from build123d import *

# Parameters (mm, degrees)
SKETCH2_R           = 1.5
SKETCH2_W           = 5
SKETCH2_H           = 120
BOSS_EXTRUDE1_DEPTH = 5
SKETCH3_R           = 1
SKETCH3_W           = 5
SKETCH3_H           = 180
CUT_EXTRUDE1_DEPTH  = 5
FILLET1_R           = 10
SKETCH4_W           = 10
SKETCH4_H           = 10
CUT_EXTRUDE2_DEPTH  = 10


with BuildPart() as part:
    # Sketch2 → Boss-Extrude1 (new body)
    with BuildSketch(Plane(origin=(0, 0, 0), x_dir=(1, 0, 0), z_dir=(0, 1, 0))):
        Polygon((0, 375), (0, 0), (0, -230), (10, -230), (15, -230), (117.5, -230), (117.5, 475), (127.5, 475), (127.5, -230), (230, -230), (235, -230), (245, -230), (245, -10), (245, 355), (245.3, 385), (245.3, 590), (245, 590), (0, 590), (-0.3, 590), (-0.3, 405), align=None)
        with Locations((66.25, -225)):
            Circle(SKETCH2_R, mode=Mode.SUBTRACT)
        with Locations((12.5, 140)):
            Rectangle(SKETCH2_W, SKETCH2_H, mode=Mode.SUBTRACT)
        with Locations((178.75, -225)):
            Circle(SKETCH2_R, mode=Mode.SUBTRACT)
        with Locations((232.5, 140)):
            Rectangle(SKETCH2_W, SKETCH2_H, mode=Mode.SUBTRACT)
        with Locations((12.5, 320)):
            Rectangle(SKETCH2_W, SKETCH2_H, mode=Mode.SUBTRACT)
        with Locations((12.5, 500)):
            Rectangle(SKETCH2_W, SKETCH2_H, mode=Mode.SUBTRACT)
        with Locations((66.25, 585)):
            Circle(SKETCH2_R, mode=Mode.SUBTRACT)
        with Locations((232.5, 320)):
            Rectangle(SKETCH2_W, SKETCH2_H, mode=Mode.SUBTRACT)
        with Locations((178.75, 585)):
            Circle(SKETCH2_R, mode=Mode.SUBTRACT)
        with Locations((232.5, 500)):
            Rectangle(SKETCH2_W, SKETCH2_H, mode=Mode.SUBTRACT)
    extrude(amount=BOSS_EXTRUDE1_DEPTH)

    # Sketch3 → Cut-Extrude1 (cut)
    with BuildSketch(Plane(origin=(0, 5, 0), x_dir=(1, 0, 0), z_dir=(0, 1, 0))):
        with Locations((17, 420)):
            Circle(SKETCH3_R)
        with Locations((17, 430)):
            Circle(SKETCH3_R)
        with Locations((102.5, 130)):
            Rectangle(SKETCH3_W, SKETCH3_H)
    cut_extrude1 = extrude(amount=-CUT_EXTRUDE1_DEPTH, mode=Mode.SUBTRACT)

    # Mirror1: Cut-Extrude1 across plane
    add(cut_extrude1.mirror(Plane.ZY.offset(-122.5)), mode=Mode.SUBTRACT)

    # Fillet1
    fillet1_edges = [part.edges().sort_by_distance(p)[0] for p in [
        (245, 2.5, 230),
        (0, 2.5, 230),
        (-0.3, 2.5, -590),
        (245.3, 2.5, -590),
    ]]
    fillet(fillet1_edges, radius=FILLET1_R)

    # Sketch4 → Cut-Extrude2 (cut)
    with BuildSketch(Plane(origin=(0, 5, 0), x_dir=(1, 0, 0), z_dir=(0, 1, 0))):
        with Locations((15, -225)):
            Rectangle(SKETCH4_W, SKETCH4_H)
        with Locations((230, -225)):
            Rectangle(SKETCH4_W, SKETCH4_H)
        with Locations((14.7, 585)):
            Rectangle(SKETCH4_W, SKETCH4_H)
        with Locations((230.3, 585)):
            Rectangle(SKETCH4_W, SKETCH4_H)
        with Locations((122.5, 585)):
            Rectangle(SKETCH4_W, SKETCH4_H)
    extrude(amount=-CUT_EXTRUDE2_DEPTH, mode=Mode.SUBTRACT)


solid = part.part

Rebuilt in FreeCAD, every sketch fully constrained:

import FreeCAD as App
import Part
import Sketcher

V = App.Vector


def edges_at(feature, points):
    """Names of the edges that pass closest to the given points."""
    edges = feature.Shape.Edges
    near = lambda p: min(range(len(edges)), key=lambda i: edges[i].distToShape(Part.Vertex(*p))[0])
    return sorted({f"Edge{near(p) + 1}" for p in points})


def add_polygon(sketch, points):
    """Adds a closed chain of lines whose ends are joined by coincident constraints."""
    first, n = sketch.GeometryCount, len(points)
    for a, b in zip(points, points[1:] + points[:1]):
        sketch.addGeometry(Part.LineSegment(App.Vector(*a, 0), App.Vector(*b, 0)), False)
    for i in range(n):
        sketch.addConstraint(Sketcher.Constraint("Coincident", first + i, 2, first + (i + 1) % n, 1))

doc = App.newDocument("Part")
body = doc.addObject("PartDesign::Body", "Body")

# Sketch on XZ plane
sketch1 = body.newObject("Sketcher::SketchObject", "Sketch")
sketch1.AttachmentSupport = (doc.getObject("XZ_Plane"), [""])
sketch1.MapMode = "FlatFace"
add_polygon(sketch1, [(0, -375), (0, 230), (117.5, 230), (117.5, -475), (127.5, -475), (127.5, 230), (245, 230), (245, -355), (245.3, -385), (245.3, -590), (-0.3, -590), (-0.3, -405)])  # lines 0-11
sketch1.addGeometry(Part.Circle(V(66.2, 225, 0), V(0, 0, 1), 1.5), False)  # 12
add_polygon(sketch1, [(15, -80), (10, -80), (10, -200), (15, -200)])  # lines 13-16
sketch1.addGeometry(Part.Circle(V(178.8, 225, 0), V(0, 0, 1), 1.5), False)  # 17
add_polygon(sketch1, [(235, -80), (230, -80), (230, -200), (235, -200)])  # lines 18-21
add_polygon(sketch1, [(15, -260), (10, -260), (10, -380), (15, -380)])  # lines 22-25
add_polygon(sketch1, [(15, -440), (10, -440), (10, -560), (15, -560)])  # lines 26-29
sketch1.addGeometry(Part.Circle(V(66.2, -585, 0), V(0, 0, 1), 1.5), False)  # 30
add_polygon(sketch1, [(235, -260), (230, -260), (230, -380), (235, -380)])  # lines 31-34
sketch1.addGeometry(Part.Circle(V(178.8, -585, 0), V(0, 0, 1), 1.5), False)  # 35
add_polygon(sketch1, [(235, -440), (230, -440), (230, -560), (235, -560)])  # lines 36-39
sketch1.addConstraint([
    Sketcher.Constraint("Vertical", 0),
    Sketcher.Constraint("Horizontal", 1),
    Sketcher.Constraint("Vertical", 2),
    Sketcher.Constraint("Horizontal", 3),
    Sketcher.Constraint("Vertical", 4),
    Sketcher.Constraint("Horizontal", 5),
    Sketcher.Constraint("Vertical", 6),
    Sketcher.Constraint("Vertical", 8),
    Sketcher.Constraint("Horizontal", 9),
    Sketcher.Constraint("Vertical", 10),
    Sketcher.Constraint("Horizontal", 13),
    Sketcher.Constraint("Vertical", 14),
    Sketcher.Constraint("Horizontal", 15),
    Sketcher.Constraint("Vertical", 16),
    Sketcher.Constraint("Horizontal", 18),
    Sketcher.Constraint("Vertical", 19),
    Sketcher.Constraint("Horizontal", 20),
    Sketcher.Constraint("Vertical", 21),
    Sketcher.Constraint("Horizontal", 22),
    Sketcher.Constraint("Vertical", 23),
    Sketcher.Constraint("Horizontal", 24),
    Sketcher.Constraint("Vertical", 25),
    Sketcher.Constraint("Horizontal", 26),
    Sketcher.Constraint("Vertical", 27),
    Sketcher.Constraint("Horizontal", 28),
    Sketcher.Constraint("Vertical", 29),
    Sketcher.Constraint("Horizontal", 31),
    Sketcher.Constraint("Vertical", 32),
    Sketcher.Constraint("Horizontal", 33),
    Sketcher.Constraint("Vertical", 34),
    Sketcher.Constraint("Horizontal", 36),
    Sketcher.Constraint("Vertical", 37),
    Sketcher.Constraint("Horizontal", 38),
    Sketcher.Constraint("Vertical", 39),
    Sketcher.Constraint("Equal", 12, 17),
    Sketcher.Constraint("Equal", 17, 30),
    Sketcher.Constraint("Equal", 30, 35),
    Sketcher.Constraint("PointOnObject", 0, 2, -2),
    Sketcher.Constraint("Horizontal", 12, 3, 17, 3),
    Sketcher.Constraint("Horizontal", 30, 3, 35, 3),
    Sketcher.Constraint("Horizontal", 1, 2, 4, 2),
    Sketcher.Constraint("Horizontal", 16, 2, 18, 2),
    Sketcher.Constraint("Horizontal", 15, 2, 19, 2),
    Sketcher.Constraint("Horizontal", 25, 2, 31, 2),
    Sketcher.Constraint("Horizontal", 24, 2, 32, 2),
    Sketcher.Constraint("Horizontal", 29, 2, 36, 2),
    Sketcher.Constraint("Horizontal", 28, 2, 37, 2),
    Sketcher.Constraint("Vertical", 12, 3, 30, 3),
    Sketcher.Constraint("Vertical", 17, 3, 35, 3),
    Sketcher.Constraint("Vertical", 14, 2, 22, 2),
    Sketcher.Constraint("Vertical", 16, 2, 24, 2),
    Sketcher.Constraint("Vertical", 23, 2, 26, 2),
    Sketcher.Constraint("Vertical", 25, 2, 28, 2),
    Sketcher.Constraint("Vertical", 19, 2, 31, 2),
    Sketcher.Constraint("Vertical", 21, 2, 33, 2),
    Sketcher.Constraint("Vertical", 32, 2, 36, 2),
    Sketcher.Constraint("Vertical", 34, 2, 38, 2),
    Sketcher.Constraint("Equal", 1, 5),
    Sketcher.Constraint("Equal", 15, 18),
    Sketcher.Constraint("Equal", 21, 23),
    Sketcher.Constraint("Equal", 25, 27),
    Sketcher.Constraint("Equal", 7, 11),
    Sketcher.Constraint("Diameter", 12, 3.0),
    Sketcher.Constraint("DistanceX", 3, 1, 3, 2, 10.0),
    Sketcher.Constraint("DistanceX", 13, 2, 13, 1, 5.0),
    Sketcher.Constraint("DistanceY", 0, 1, 0, 2, 605.0),
    Sketcher.Constraint("DistanceY", 2, 2, 2, 1, 705.0),
    Sketcher.Constraint("DistanceY", 6, 2, 6, 1, 585.0),
    Sketcher.Constraint("DistanceY", 8, 2, 8, 1, 205.0),
    Sketcher.Constraint("DistanceY", 10, 1, 10, 2, 185.0),
    Sketcher.Constraint("DistanceY", 14, 2, 14, 1, 120.0),
    Sketcher.Constraint("DistanceX", 1, 1, 1, 2, 117.5),
    Sketcher.Constraint("DistanceX", 9, 2, 9, 1, 245.6),
    Sketcher.Constraint("DistanceY", -1, 1, 12, 3, 225.0),
    Sketcher.Constraint("DistanceY", 30, 3, -1, 1, 585.0),
    Sketcher.Constraint("DistanceY", -1, 1, 0, 2, 230.0),
    Sketcher.Constraint("DistanceY", 7, 2, -1, 1, 385.0),
    Sketcher.Constraint("DistanceX", -1, 1, 13, 2, 10.0),
    Sketcher.Constraint("DistanceY", 13, 2, -1, 1, 80.0),
    Sketcher.Constraint("DistanceX", -1, 1, 18, 2, 230.0),
    Sketcher.Constraint("DistanceY", 22, 2, -1, 1, 260.0),
    Sketcher.Constraint("DistanceY", 26, 2, -1, 1, 440.0),
    Sketcher.Constraint("DistanceX", 12, 3, 17, 3, 112.5),
    Sketcher.Constraint("DistanceX", -1, 1, 12, 3, 66.25),
])
pad1 = body.newObject("PartDesign::Pad", "Pad")
pad1.Profile = sketch1
pad1.Length = 5
pad1.Reversed = True

# Sketch on XZ plane
sketch2 = body.newObject("Sketcher::SketchObject", "Sketch001")
sketch2.AttachmentSupport = (doc.getObject("XZ_Plane"), [""])
sketch2.MapMode = "FlatFace"
sketch2.AttachmentOffset = App.Placement(V(0, 0, -5), App.Rotation())
sketch2.addGeometry(Part.Circle(V(17, -420, 0), V(0, 0, 1), 1), False)  # 0
sketch2.addGeometry(Part.Circle(V(17, -430, 0), V(0, 0, 1), 1), False)  # 1
add_polygon(sketch2, [(100, -220), (100, -40), (105, -40), (105, -220)])  # lines 2-5
sketch2.addConstraint([
    Sketcher.Constraint("Vertical", 2),
    Sketcher.Constraint("Horizontal", 3),
    Sketcher.Constraint("Vertical", 4),
    Sketcher.Constraint("Horizontal", 5),
    Sketcher.Constraint("Equal", 0, 1),
    Sketcher.Constraint("Vertical", 0, 3, 1, 3),
    Sketcher.Constraint("Diameter", 0, 2.0),
    Sketcher.Constraint("DistanceX", 3, 1, 3, 2, 5.0),
    Sketcher.Constraint("DistanceY", 2, 1, 2, 2, 180.0),
    Sketcher.Constraint("DistanceX", -1, 1, 0, 3, 17.0),
    Sketcher.Constraint("DistanceY", 0, 3, -1, 1, 420.0),
    Sketcher.Constraint("DistanceY", 1, 3, -1, 1, 430.0),
    Sketcher.Constraint("DistanceX", -1, 1, 2, 2, 100.0),
    Sketcher.Constraint("DistanceY", 2, 2, -1, 1, 40.0),
])
pocket1 = body.newObject("PartDesign::Pocket", "Pocket")
pocket1.Profile = sketch2
pocket1.Length = 5
pocket1.Reversed = True
doc.recompute()

datumplane = body.newObject("PartDesign::Plane", "DatumPlane")
datumplane.AttachmentSupport = (doc.getObject("YZ_Plane"), [""])
datumplane.MapMode = "FlatFace"
datumplane.AttachmentOffset = App.Placement(V(0, 0, 122.5), App.Rotation())
mirrored = body.newObject("PartDesign::Mirrored", "Mirrored")
mirrored.Originals = [pocket1]
mirrored.MirrorPlane = (datumplane, [""])
body.Tip = mirrored
doc.recompute()

fillet = body.newObject("PartDesign::Fillet", "Fillet")
fillet.Base = (mirrored, edges_at(mirrored, [
    (245, 2.5, 230),
    (0, 2.5, 230),
    (-0.3, 2.5, -590),
    (245.3, 2.5, -590),
]))
fillet.Radius = 10

# Sketch on XZ plane
sketch3 = body.newObject("Sketcher::SketchObject", "Sketch002")
sketch3.AttachmentSupport = (doc.getObject("XZ_Plane"), [""])
sketch3.MapMode = "FlatFace"
sketch3.AttachmentOffset = App.Placement(V(0, 0, -5), App.Rotation())
add_polygon(sketch3, [(10, 220), (10, 230), (20, 230), (20, 220)])  # lines 0-3
add_polygon(sketch3, [(225, 220), (225, 230), (235, 230), (235, 220)])  # lines 4-7
add_polygon(sketch3, [(10, -590), (10, -580), (20, -580), (20, -590)])  # lines 8-11
add_polygon(sketch3, [(225, -590), (225, -580), (235, -580), (235, -590)])  # lines 12-15
add_polygon(sketch3, [(118, -590), (118, -580), (128, -580), (128, -590)])  # lines 16-19
sketch3.addConstraint([
    Sketcher.Constraint("Vertical", 0),
    Sketcher.Constraint("Horizontal", 1),
    Sketcher.Constraint("Vertical", 2),
    Sketcher.Constraint("Horizontal", 3),
    Sketcher.Constraint("Vertical", 4),
    Sketcher.Constraint("Horizontal", 5),
    Sketcher.Constraint("Vertical", 6),
    Sketcher.Constraint("Horizontal", 7),
    Sketcher.Constraint("Vertical", 8),
    Sketcher.Constraint("Horizontal", 9),
    Sketcher.Constraint("Vertical", 10),
    Sketcher.Constraint("Horizontal", 11),
    Sketcher.Constraint("Vertical", 12),
    Sketcher.Constraint("Horizontal", 13),
    Sketcher.Constraint("Vertical", 14),
    Sketcher.Constraint("Horizontal", 15),
    Sketcher.Constraint("Vertical", 16),
    Sketcher.Constraint("Horizontal", 17),
    Sketcher.Constraint("Vertical", 18),
    Sketcher.Constraint("Horizontal", 19),
    Sketcher.Constraint("Horizontal", 1, 2, 4, 2),
    Sketcher.Constraint("Horizontal", 3, 2, 6, 2),
    Sketcher.Constraint("Horizontal", 9, 2, 12, 2),
    Sketcher.Constraint("Horizontal", 11, 2, 14, 2),
    Sketcher.Constraint("Horizontal", 13, 2, 16, 2),
    Sketcher.Constraint("Horizontal", 15, 2, 18, 2),
    Sketcher.Constraint("Equal", 3, 5),
    Sketcher.Constraint("Equal", 7, 9),
    Sketcher.Constraint("Equal", 11, 13),
    Sketcher.Constraint("Equal", 15, 17),
    Sketcher.Constraint("Equal", 19, 0),
    Sketcher.Constraint("Equal", 6, 8),
    Sketcher.Constraint("DistanceX", 1, 1, 1, 2, 10.0),
    Sketcher.Constraint("DistanceX", -1, 1, 0, 2, 10.0),
    Sketcher.Constraint("DistanceY", -1, 1, 0, 2, 230.0),
    Sketcher.Constraint("DistanceX", -1, 1, 4, 2, 225.0),
    Sketcher.Constraint("DistanceY", 8, 2, -1, 1, 580.0),
    Sketcher.Constraint("DistanceX", -1, 1, 8, 2, 9.7),
    Sketcher.Constraint("DistanceX", -1, 1, 12, 2, 225.3),
    Sketcher.Constraint("DistanceX", -1, 1, 16, 2, 117.5),
])
pocket2 = body.newObject("PartDesign::Pocket", "Pocket001")
pocket2.Profile = sketch3
pocket2.Length = 10
pocket2.Reversed = True

doc.recompute()
